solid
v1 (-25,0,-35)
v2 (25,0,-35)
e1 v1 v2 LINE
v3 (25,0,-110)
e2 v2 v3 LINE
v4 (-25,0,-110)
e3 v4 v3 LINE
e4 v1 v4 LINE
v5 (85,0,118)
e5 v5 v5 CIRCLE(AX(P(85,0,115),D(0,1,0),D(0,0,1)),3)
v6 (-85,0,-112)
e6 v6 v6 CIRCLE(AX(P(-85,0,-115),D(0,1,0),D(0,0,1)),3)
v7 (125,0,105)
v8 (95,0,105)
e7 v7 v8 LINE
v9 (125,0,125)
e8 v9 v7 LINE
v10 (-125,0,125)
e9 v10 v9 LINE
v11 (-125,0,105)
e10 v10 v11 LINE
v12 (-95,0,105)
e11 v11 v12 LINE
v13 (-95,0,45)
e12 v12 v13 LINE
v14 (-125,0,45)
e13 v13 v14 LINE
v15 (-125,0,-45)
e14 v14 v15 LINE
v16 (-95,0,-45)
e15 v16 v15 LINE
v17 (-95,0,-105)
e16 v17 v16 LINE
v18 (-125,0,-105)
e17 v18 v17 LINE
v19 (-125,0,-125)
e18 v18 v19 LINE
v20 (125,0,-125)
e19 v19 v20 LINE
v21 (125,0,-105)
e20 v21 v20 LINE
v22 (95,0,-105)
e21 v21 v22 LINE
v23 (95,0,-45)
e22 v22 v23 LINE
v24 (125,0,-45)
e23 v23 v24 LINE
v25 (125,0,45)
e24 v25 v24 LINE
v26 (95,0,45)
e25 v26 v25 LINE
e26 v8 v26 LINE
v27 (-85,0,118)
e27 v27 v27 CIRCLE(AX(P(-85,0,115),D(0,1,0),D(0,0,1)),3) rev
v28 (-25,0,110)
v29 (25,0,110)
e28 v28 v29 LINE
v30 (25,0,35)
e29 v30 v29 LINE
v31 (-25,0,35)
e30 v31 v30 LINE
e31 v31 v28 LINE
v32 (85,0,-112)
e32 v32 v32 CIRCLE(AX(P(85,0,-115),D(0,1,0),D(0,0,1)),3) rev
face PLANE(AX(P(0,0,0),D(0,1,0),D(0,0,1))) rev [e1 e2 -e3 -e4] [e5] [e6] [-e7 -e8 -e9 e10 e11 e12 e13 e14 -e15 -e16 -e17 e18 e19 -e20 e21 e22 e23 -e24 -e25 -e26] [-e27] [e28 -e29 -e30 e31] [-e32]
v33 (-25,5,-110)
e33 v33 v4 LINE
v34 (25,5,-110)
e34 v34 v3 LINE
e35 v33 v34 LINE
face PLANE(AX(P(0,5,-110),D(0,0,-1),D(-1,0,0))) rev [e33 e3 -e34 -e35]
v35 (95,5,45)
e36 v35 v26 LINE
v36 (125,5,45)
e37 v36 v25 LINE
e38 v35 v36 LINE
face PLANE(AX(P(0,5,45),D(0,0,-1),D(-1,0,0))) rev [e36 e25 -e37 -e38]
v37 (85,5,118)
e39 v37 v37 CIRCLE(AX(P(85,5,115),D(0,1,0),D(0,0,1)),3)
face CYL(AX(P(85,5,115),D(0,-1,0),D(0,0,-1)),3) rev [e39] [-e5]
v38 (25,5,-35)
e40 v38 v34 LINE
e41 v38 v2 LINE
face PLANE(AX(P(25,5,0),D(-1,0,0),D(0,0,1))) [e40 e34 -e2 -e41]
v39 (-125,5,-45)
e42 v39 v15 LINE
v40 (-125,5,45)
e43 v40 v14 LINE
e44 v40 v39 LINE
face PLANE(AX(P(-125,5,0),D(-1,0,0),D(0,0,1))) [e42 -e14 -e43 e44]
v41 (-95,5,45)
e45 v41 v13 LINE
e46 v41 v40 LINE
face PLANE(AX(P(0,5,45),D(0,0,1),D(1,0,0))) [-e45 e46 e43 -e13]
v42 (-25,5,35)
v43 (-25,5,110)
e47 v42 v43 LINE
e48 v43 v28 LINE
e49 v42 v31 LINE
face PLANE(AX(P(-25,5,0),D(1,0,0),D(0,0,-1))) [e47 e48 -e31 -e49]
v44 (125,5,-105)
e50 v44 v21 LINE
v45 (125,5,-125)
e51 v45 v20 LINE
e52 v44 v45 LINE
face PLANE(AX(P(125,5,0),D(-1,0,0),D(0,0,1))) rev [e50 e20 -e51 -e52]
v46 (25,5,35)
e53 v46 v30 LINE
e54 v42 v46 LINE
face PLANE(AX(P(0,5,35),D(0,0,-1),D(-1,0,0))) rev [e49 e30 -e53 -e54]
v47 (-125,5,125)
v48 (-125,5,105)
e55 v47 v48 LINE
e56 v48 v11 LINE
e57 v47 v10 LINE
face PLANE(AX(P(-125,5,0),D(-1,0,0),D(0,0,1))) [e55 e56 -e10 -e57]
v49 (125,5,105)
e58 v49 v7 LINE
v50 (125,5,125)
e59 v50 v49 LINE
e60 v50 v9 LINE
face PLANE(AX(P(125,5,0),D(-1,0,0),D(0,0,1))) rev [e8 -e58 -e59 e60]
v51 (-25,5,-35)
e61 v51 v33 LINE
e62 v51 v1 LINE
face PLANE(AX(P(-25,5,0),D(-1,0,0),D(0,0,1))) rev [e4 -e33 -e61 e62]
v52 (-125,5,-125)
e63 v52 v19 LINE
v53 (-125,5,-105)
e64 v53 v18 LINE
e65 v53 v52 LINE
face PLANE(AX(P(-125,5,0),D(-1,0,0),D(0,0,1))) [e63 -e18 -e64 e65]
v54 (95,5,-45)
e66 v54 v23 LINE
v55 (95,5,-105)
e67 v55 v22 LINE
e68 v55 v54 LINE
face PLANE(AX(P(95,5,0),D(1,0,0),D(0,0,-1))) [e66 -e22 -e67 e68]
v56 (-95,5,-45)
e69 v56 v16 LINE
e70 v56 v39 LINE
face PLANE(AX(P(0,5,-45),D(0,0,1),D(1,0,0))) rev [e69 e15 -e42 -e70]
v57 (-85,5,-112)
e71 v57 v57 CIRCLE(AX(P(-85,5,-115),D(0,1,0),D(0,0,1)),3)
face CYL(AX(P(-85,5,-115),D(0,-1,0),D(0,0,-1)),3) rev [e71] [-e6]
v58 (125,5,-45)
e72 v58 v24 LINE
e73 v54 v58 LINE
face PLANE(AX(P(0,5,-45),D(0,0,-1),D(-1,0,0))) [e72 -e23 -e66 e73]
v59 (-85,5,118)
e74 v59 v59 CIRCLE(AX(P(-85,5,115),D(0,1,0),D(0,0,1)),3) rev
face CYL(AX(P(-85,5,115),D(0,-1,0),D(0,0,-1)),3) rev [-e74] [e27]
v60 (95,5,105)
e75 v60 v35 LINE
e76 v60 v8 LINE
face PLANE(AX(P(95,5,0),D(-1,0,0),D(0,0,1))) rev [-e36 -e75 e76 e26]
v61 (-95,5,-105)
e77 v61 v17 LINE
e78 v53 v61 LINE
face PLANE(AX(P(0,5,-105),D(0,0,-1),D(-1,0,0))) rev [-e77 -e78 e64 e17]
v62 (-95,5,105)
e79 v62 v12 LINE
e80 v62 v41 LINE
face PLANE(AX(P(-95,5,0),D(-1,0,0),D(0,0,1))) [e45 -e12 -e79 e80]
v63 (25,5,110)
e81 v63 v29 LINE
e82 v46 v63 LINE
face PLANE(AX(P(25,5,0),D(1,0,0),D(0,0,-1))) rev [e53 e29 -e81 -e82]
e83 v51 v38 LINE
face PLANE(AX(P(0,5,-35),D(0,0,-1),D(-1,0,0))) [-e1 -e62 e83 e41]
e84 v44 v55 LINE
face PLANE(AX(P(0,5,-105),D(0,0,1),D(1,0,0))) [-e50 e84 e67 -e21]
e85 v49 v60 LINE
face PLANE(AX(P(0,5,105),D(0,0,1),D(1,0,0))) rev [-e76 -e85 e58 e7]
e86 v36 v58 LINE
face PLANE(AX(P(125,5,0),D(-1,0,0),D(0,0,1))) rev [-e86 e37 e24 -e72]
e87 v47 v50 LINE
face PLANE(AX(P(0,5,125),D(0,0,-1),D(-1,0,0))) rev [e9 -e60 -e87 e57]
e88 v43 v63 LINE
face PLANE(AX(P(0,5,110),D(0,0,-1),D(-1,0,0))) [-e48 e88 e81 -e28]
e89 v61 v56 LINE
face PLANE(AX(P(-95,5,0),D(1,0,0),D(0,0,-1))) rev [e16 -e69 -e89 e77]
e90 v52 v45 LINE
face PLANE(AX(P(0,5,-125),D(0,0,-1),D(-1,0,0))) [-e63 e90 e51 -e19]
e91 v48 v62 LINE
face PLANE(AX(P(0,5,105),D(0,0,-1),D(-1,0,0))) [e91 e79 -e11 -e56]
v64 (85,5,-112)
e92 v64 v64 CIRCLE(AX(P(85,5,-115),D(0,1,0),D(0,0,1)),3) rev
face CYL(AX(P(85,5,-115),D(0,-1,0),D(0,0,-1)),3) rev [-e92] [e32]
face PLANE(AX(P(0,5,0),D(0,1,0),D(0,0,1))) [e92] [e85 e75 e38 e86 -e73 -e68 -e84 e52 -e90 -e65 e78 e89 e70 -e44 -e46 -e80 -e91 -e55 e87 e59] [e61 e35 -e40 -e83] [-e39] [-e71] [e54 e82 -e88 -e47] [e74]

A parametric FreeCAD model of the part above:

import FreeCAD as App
import Part
import Sketcher

doc = App.newDocument("Part")
body = doc.addObject("PartDesign::Body", "Body")

sketch1 = body.newObject("Sketcher::SketchObject", "Sketch")
sketch1.AttachmentSupport = (doc.getObject("XZ_Plane"), [""])
sketch1.MapMode = "FlatFace"
sketch1.addGeometry(Part.LineSegment(App.Vector(-125, -125, 0), App.Vector(-125, -105, 0)), False)
sketch1.addGeometry(Part.LineSegment(App.Vector(-125, -105, 0), App.Vector(-95, -105, 0)), False)
sketch1.addGeometry(Part.LineSegment(App.Vector(-95, -105, 0), App.Vector(-95, -45, 0)), False)
sketch1.addGeometry(Part.LineSegment(App.Vector(-95, -45, 0), App.Vector(-125, -45, 0)), False)
sketch1.addGeometry(Part.LineSegment(App.Vector(-125, -45, 0), App.Vector(-125, 45, 0)), False)
sketch1.addGeometry(Part.LineSegment(App.Vector(-125, 45, 0), App.Vector(-95, 45, 0)), False)
sketch1.addGeometry(Part.LineSegment(App.Vector(-95, 45, 0), App.Vector(-95, 105, 0)), False)
sketch1.addGeometry(Part.LineSegment(App.Vector(-95, 105, 0), App.Vector(-125, 105, 0)), False)
sketch1.addGeometry(Part.LineSegment(App.Vector(-125, 105, 0), App.Vector(-125, 125, 0)), False)
sketch1.addGeometry(Part.LineSegment(App.Vector(-125, 125, 0), App.Vector(125, 125, 0)), False)
sketch1.addGeometry(Part.LineSegment(App.Vector(125, 125, 0), App.Vector(125, 105, 0)), False)
sketch1.addGeometry(Part.LineSegment(App.Vector(125, 105, 0), App.Vector(95, 105, 0)), False)
sketch1.addGeometry(Part.LineSegment(App.Vector(95, 105, 0), App.Vector(95, 45, 0)), False)
sketch1.addGeometry(Part.LineSegment(App.Vector(95, 45, 0), App.Vector(125, 45, 0)), False)
sketch1.addGeometry(Part.LineSegment(App.Vector(125, 45, 0), App.Vector(125, -45, 0)), False)
sketch1.addGeometry(Part.LineSegment(App.Vector(125, -45, 0), App.Vector(95, -45, 0)), False)
sketch1.addGeometry(Part.LineSegment(App.Vector(95, -45, 0), App.Vector(95, -105, 0)), False)
sketch1.addGeometry(Part.LineSegment(App.Vector(95, -105, 0), App.Vector(125, -105, 0)), False)
sketch1.addGeometry(Part.LineSegment(App.Vector(125, -105, 0), App.Vector(125, -125, 0)), False)
sketch1.addGeometry(Part.LineSegment(App.Vector(125, -125, 0), App.Vector(-125, -125, 0)), False)
sketch1.addGeometry(Part.Circle(App.Vector(-85, 115, 0), App.Vector(0, 0, 1), 3), False)
sketch1.addGeometry(Part.LineSegment(App.Vector(25, 110, 0), App.Vector(-25, 110, 0)), False)
sketch1.addGeometry(Part.LineSegment(App.Vector(-25, 110, 0), App.Vector(-25, 35, 0)), False)
sketch1.addGeometry(Part.LineSegment(App.Vector(-25, 35, 0), App.Vector(25, 35, 0)), False)
sketch1.addGeometry(Part.LineSegment(App.Vector(25, 35, 0), App.Vector(25, 110, 0)), False)
sketch1.addGeometry(Part.Circle(App.Vector(85, 115, 0), App.Vector(0, 0, 1), 3), False)
sketch1.addGeometry(Part.Circle(App.Vector(-85, -115, 0), App.Vector(0, 0, 1), 3), False)
sketch1.addGeometry(Part.LineSegment(App.Vector(25, -35, 0), App.Vector(-25, -35, 0)), False)
sketch1.addGeometry(Part.LineSegment(App.Vector(-25, -35, 0), App.Vector(-25, -110, 0)), False)
sketch1.addGeometry(Part.LineSegment(App.Vector(-25, -110, 0), App.Vector(25, -110, 0)), False)
sketch1.addGeometry(Part.LineSegment(App.Vector(25, -110, 0), App.Vector(25, -35, 0)), False)
sketch1.addGeometry(Part.Circle(App.Vector(85, -115, 0), App.Vector(0, 0, 1), 3), False)
sketch1.addConstraint(Sketcher.Constraint("Coincident", 0, 2, 1, 1))
sketch1.addConstraint(Sketcher.Constraint("Coincident", 1, 2, 2, 1))
sketch1.addConstraint(Sketcher.Constraint("Coincident", 2, 2, 3, 1))
sketch1.addConstraint(Sketcher.Constraint("Coincident", 3, 2, 4, 1))
sketch1.addConstraint(Sketcher.Constraint("Coincident", 4, 2, 5, 1))
sketch1.addConstraint(Sketcher.Constraint("Coincident", 5, 2, 6, 1))
sketch1.addConstraint(Sketcher.Constraint("Coincident", 6, 2, 7, 1))
sketch1.addConstraint(Sketcher.Constraint("Coincident", 7, 2, 8, 1))
sketch1.addConstraint(Sketcher.Constraint("Coincident", 8, 2, 9, 1))
sketch1.addConstraint(Sketcher.Constraint("Coincident", 9, 2, 10, 1))
sketch1.addConstraint(Sketcher.Constraint("Coincident", 10, 2, 11, 1))
sketch1.addConstraint(Sketcher.Constraint("Coincident", 11, 2, 12, 1))
sketch1.addConstraint(Sketcher.Constraint("Coincident", 12, 2, 13, 1))
sketch1.addConstraint(Sketcher.Constraint("Coincident", 13, 2, 14, 1))
sketch1.addConstraint(Sketcher.Constraint("Coincident", 14, 2, 15, 1))
sketch1.addConstraint(Sketcher.Constraint("Coincident", 15, 2, 16, 1))
sketch1.addConstraint(Sketcher.Constraint("Coincident", 16, 2, 17, 1))
sketch1.addConstraint(Sketcher.Constraint("Coincident", 17, 2, 18, 1))
sketch1.addConstraint(Sketcher.Constraint("Coincident", 18, 2, 19, 1))
sketch1.addConstraint(Sketcher.Constraint("Coincident", 19, 2, 0, 1))
sketch1.addConstraint(Sketcher.Constraint("Coincident", 21, 2, 22, 1))
sketch1.addConstraint(Sketcher.Constraint("Coincident", 22, 2, 23, 1))
sketch1.addConstraint(Sketcher.Constraint("Coincident", 23, 2, 24, 1))
sketch1.addConstraint(Sketcher.Constraint("Coincident", 24, 2, 21, 1))
sketch1.addConstraint(Sketcher.Constraint("Coincident", 27, 2, 28, 1))
sketch1.addConstraint(Sketcher.Constraint("Coincident", 28, 2, 29, 1))
sketch1.addConstraint(Sketcher.Constraint("Coincident", 29, 2, 30, 1))
sketch1.addConstraint(Sketcher.Constraint("Coincident", 30, 2, 27, 1))
sketch1.addConstraint(Sketcher.Constraint("Vertical", 0))
sketch1.addConstraint(Sketcher.Constraint("Horizontal", 1))
sketch1.addConstraint(Sketcher.Constraint("Vertical", 2))
sketch1.addConstraint(Sketcher.Constraint("Horizontal", 3))
sketch1.addConstraint(Sketcher.Constraint("Vertical", 4))
sketch1.addConstraint(Sketcher.Constraint("Horizontal", 5))
sketch1.addConstraint(Sketcher.Constraint("Vertical", 6))
sketch1.addConstraint(Sketcher.Constraint("Horizontal", 7))
sketch1.addConstraint(Sketcher.Constraint("Vertical", 8))
sketch1.addConstraint(Sketcher.Constraint("Horizontal", 9))
sketch1.addConstraint(Sketcher.Constraint("Vertical", 10))
sketch1.addConstraint(Sketcher.Constraint("Horizontal", 11))
sketch1.addConstraint(Sketcher.Constraint("Vertical", 12))
sketch1.addConstraint(Sketcher.Constraint("Horizontal", 13))
sketch1.addConstraint(Sketcher.Constraint("Vertical", 14))
sketch1.addConstraint(Sketcher.Constraint("Horizontal", 15))
sketch1.addConstraint(Sketcher.Constraint("Vertical", 16))
sketch1.addConstraint(Sketcher.Constraint("Horizontal", 17))
sketch1.addConstraint(Sketcher.Constraint("Vertical", 18))
sketch1.addConstraint(Sketcher.Constraint("Horizontal", 19))
sketch1.addConstraint(Sketcher.Constraint("Horizontal", 21))
sketch1.addConstraint(Sketcher.Constraint("Vertical", 22))
sketch1.addConstraint(Sketcher.Constraint("Horizontal", 23))
sketch1.addConstraint(Sketcher.Constraint("Vertical", 24))
sketch1.addConstraint(Sketcher.Constraint("Horizontal", 27))
sketch1.addConstraint(Sketcher.Constraint("Vertical", 28))
sketch1.addConstraint(Sketcher.Constraint("Horizontal", 29))
sketch1.addConstraint(Sketcher.Constraint("Vertical", 30))
sketch1.addConstraint(Sketcher.Constraint("Equal", 20, 25))
sketch1.addConstraint(Sketcher.Constraint("Equal", 25, 26))
sketch1.addConstraint(Sketcher.Constraint("Equal", 26, 31))
sketch1.addConstraint(Sketcher.Constraint("Symmetric", 25, 3, 26, 3, -1, 1))
sketch1.addConstraint(Sketcher.Constraint("Symmetric", 20, 3, 31, 3, -1, 1))
sketch1.addConstraint(Sketcher.Constraint("Symmetric", 0, 2, 10, 2, -1, 1))
sketch1.addConstraint(Sketcher.Constraint("Symmetric", 2, 2, 12, 2, -1, 1))
sketch1.addConstraint(Sketcher.Constraint("Symmetric", 4, 2, 14, 2, -1, 1))
sketch1.addConstraint(Sketcher.Constraint("Symmetric", 6, 2, 16, 2, -1, 1))
sketch1.addConstraint(Sketcher.Constraint("Symmetric", 8, 2, 18, 2, -1, 1))
sketch1.addConstraint(Sketcher.Constraint("Symmetric", 23, 2, 27, 2, -1, 1))
sketch1.addConstraint(Sketcher.Constraint("Symmetric", 21, 2, 29, 2, -1, 1))
sketch1.addConstraint(Sketcher.Constraint("Symmetric", 20, 3, 25, 3, -2))
sketch1.addConstraint(Sketcher.Constraint("Symmetric", 7, 2, 10, 2, -2))
sketch1.addConstraint(Sketcher.Constraint("Symmetric", 5, 2, 12, 2, -2))
sketch1.addConstraint(Sketcher.Constraint("Vertical", 0, 2, 3, 2))
sketch1.addConstraint(Sketcher.Constraint("Vertical", 22, 2, 27, 2))
sketch1.addConstraint(Sketcher.Constraint("Diameter", 20, 6.0))
sketch1.addConstraint(Sketcher.Constraint("DistanceX", 1, 1, 1, 2, 30.0))
sketch1.addConstraint(Sketcher.Constraint("DistanceX", 9, 1, 9, 2, 250.0))
sketch1.addConstraint(Sketcher.Constraint("DistanceX", 21, 2, 21, 1, 50.0))
sketch1.addConstraint(Sketcher.Constraint("DistanceY", 0, 1, 0, 2, 20.0))
sketch1.addConstraint(Sketcher.Constraint("DistanceY", 2, 1, 2, 2, 60.0))
sketch1.addConstraint(Sketcher.Constraint("DistanceY", 4, 1, 4, 2, 90.0))
sketch1.addConstraint(Sketcher.Constraint("DistanceY", 22, 2, 22, 1, 75.0))
sketch1.addConstraint(Sketcher.Constraint("DistanceX", 20, 3, -1, 1, 85.0))
sketch1.addConstraint(Sketcher.Constraint("DistanceY", -1, 1, 20, 3, 115.0))
sketch1.addConstraint(Sketcher.Constraint("DistanceY", -1, 1, 21, 2, 110.0))
pad1 = body.newObject("PartDesign::Pad", "Pad")
pad1.Profile = sketch1
pad1.Length = 5
pad1.Reversed = True

doc.recompute()
